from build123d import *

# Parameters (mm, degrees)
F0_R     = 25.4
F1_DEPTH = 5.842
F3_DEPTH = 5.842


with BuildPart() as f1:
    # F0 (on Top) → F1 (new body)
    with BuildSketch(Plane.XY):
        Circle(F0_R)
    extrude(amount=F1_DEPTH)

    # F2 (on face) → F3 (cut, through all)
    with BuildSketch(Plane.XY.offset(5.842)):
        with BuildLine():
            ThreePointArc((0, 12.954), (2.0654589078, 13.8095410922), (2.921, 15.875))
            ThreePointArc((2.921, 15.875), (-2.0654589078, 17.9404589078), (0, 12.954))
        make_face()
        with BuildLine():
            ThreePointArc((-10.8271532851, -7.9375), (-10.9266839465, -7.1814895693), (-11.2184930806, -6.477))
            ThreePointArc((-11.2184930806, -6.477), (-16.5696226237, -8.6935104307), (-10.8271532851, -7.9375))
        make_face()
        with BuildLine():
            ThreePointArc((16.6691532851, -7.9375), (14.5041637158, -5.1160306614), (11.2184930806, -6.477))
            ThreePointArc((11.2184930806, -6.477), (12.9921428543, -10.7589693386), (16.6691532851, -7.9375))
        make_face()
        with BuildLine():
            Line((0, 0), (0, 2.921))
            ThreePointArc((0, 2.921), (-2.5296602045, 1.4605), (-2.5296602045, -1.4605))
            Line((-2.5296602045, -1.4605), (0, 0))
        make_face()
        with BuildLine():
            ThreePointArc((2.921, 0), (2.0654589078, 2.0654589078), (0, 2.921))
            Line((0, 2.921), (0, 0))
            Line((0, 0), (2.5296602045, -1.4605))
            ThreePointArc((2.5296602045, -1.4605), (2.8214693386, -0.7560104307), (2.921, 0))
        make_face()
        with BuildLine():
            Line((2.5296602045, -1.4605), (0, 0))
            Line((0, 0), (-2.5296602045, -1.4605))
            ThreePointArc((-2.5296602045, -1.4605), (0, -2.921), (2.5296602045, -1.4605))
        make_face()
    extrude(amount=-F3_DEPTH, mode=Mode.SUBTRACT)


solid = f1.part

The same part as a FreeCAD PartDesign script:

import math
import FreeCAD as App
import Part
import Sketcher

V = App.Vector
Q = App.Units.Quantity

doc = App.newDocument("Part")
body = doc.addObject("PartDesign::Body", "Body")

sketch1 = doc.addObject("Sketcher::SketchObject", "Sketch")
body.addObject(sketch1)
sketch1.AttachmentSupport = (doc.XY_Plane, [""])
sketch1.MapMode = "FlatFace"
sketch1.addGeometry(Part.Circle(V(0, 0, 0), V(0, 0, 1), 25), False)
sketch1.addConstraint([
    Sketcher.Constraint("Coincident", 0, 3, -1, 1),
    Sketcher.Constraint("Diameter", 0, Q("2 in")),
])
pad1 = doc.addObject("PartDesign::Pad", "Pad")
body.addObject(pad1)
pad1.Profile = sketch1
pad1.Length = Q("0.23 in")

sketch2 = doc.addObject("Sketcher::SketchObject", "Sketch001")
body.addObject(sketch2)
sketch2.AttachmentSupport = (doc.XY_Plane, [""])
sketch2.MapMode = "FlatFace"
sketch2.AttachmentOffset = App.Placement(V(0, 0, 0.23 * 25.4), App.Rotation())
sketch2.addGeometry([
    Part.ArcOfCircle(Part.Circle(V(0, 15.9, 0), V(0, 0, 1), 2.9), math.radians(-90), math.radians(0)),
    Part.ArcOfCircle(Part.Circle(V(0, 15.9, 0), V(0, 0, 1), 2.9), math.radians(0), math.radians(270)),
    Part.ArcOfCircle(Part.Circle(V(-13.7, -7.9, 0), V(0, 0, 1), 2.9), math.radians(0), math.radians(30)),
    Part.ArcOfCircle(Part.Circle(V(-13.7, -7.9, 0), V(0, 0, 1), 2.9), math.radians(30), math.radians(360)),
    Part.ArcOfCircle(Part.Circle(V(13.7, -7.9, 0), V(0, 0, 1), 2.9), math.radians(0), math.radians(150)),
    Part.ArcOfCircle(Part.Circle(V(13.7, -7.9, 0), V(0, 0, 1), 2.9), math.radians(150), math.radians(360)),
    Part.ArcOfCircle(Part.Circle(V(0, 0, 0), V(0, 0, 1), 2.9), math.radians(90), math.radians(210)),
    Part.ArcOfCircle(Part.Circle(V(0, 0, 0), V(0, 0, 1), 2.9), math.radians(-150), math.radians(-30)),
    Part.ArcOfCircle(Part.Circle(V(0, 0, 0), V(0, 0, 1), 2.9), math.radians(-30), math.radians(0)),
    Part.ArcOfCircle(Part.Circle(V(0, 0, 0), V(0, 0, 1), 2.9), math.radians(0), math.radians(90)),
], False)
sketch2.addConstraint([
    Sketcher.Constraint("Tangent", 0, 1, 1, 2),
    Sketcher.Constraint("Coincident", 1, 1, 0, 2),
    Sketcher.Constraint("Tangent", 2, 1, 3, 2),
    Sketcher.Constraint("Coincident", 3, 1, 2, 2),
    Sketcher.Constraint("Tangent", 4, 1, 5, 2),
    Sketcher.Constraint("Coincident", 5, 1, 4, 2),
    Sketcher.Constraint("Tangent", 6, 2, 7, 1),
    Sketcher.Constraint("Tangent", 7, 2, 8, 1),
    Sketcher.Constraint("Tangent", 8, 2, 9, 1),
    Sketcher.Constraint("Tangent", 9, 2, 6, 1),
    Sketcher.Constraint("Coincident", 6, 3, -1, 1),
    Sketcher.Constraint("Equal", 1, 2),
    Sketcher.Constraint("Equal", 3, 4),
    Sketcher.Constraint("Equal", 5, 6),
    Sketcher.Constraint("Equal", 6, 7),
    Sketcher.Constraint("Symmetric", 2, 3, 4, 3, -2),
    Sketcher.Constraint("PointOnObject", 0, 3, -2),
    Sketcher.Constraint("PointOnObject", 0, 1, -2),
    Sketcher.Constraint("PointOnObject", 8, 2, -1),
    Sketcher.Constraint("PointOnObject", 9, 2, -2),
    Sketcher.Constraint("Horizontal", 0, 3, 1, 1),
    Sketcher.Constraint("Horizontal", 5, 3, 2, 1),
    Sketcher.Constraint("Horizontal", 2, 1, 4, 1),
    Sketcher.Constraint("Horizontal", 3, 1, 5, 1),
    Sketcher.Constraint("Horizontal", 6, 2, 7, 2),
    Sketcher.Constraint("Radius", 0, Q("0.115 in")),
    Sketcher.Constraint("DistanceY", -1, 1, 0, 1, Q("0.51 in")),
    Sketcher.Constraint("DistanceY", 2, 3, -1, 1, Q("0.3125 in")),
    Sketcher.Constraint("DistanceY", 3, 1, -1, 1, Q("0.255 in")),
    Sketcher.Constraint("DistanceY", 6, 2, -1, 1, Q("0.0575 in")),
    Sketcher.Constraint("DistanceX", 2, 3, -1, 1, 13.748153),
])
pocket1 = doc.addObject("PartDesign::Pocket", "Pocket")
body.addObject(pocket1)
pocket1.Profile = sketch2
pocket1.Type = "ThroughAll"

doc.recompute()
